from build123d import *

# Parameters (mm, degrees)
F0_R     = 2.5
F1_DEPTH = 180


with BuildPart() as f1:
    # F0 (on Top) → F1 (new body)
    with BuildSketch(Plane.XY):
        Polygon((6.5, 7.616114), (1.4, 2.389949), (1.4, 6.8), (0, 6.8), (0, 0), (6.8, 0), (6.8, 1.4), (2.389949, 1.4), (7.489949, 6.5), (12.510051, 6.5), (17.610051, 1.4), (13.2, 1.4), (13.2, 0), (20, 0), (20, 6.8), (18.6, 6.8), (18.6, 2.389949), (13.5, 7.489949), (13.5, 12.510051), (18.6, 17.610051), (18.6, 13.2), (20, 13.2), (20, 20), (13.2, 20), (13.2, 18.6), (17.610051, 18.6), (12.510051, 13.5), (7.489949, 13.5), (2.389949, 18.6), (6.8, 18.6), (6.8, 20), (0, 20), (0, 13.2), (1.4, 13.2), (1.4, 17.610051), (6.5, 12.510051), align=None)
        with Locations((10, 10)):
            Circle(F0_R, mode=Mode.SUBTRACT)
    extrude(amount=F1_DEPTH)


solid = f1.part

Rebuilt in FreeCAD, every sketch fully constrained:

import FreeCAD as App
import Part
import Sketcher

V = App.Vector
Q = App.Units.Quantity

doc = App.newDocument("Part")
body = doc.addObject("PartDesign::Body", "Body")

# Sketch on XY plane
sketch1 = body.newObject("Sketcher::SketchObject", "Sketch")
sketch1.AttachmentSupport = (doc.getObject("XY_Plane"), [""])
sketch1.MapMode = "FlatFace"
sketch1.addGeometry(Part.LineSegment(V(6.5, 7.6, 0), V(1.4, 2.4, 0)), False)
sketch1.addGeometry(Part.LineSegment(V(1.4, 2.4, 0), V(1.4, 6.8, 0)), False)
sketch1.addGeometry(Part.LineSegment(V(1.4, 6.8, 0), V(0, 6.8, 0)), False)
sketch1.addGeometry(Part.LineSegment(V(0, 6.8, 0), V(0, 0, 0)), False)
sketch1.addGeometry(Part.LineSegment(V(0, 0, 0), V(6.8, 0, 0)), False)
sketch1.addGeometry(Part.LineSegment(V(6.8, 0, 0), V(6.8, 1.4, 0)), False)
sketch1.addGeometry(Part.LineSegment(V(6.8, 1.4, 0), V(2.4, 1.4, 0)), False)
sketch1.addGeometry(Part.LineSegment(V(2.4, 1.4, 0), V(7.5, 6.5, 0)), False)
sketch1.addGeometry(Part.LineSegment(V(7.5, 6.5, 0), V(12.5, 6.5, 0)), False)
sketch1.addGeometry(Part.LineSegment(V(12.5, 6.5, 0), V(17.6, 1.4, 0)), False)
sketch1.addGeometry(Part.LineSegment(V(17.6, 1.4, 0), V(13.2, 1.4, 0)), False)
sketch1.addGeometry(Part.LineSegment(V(13.2, 1.4, 0), V(13.2, 0, 0)), False)
sketch1.addGeometry(Part.LineSegment(V(13.2, 0, 0), V(20, 0, 0)), False)
sketch1.addGeometry(Part.LineSegment(V(20, 0, 0), V(20, 6.8, 0)), False)
sketch1.addGeometry(Part.LineSegment(V(20, 6.8, 0), V(18.6, 6.8, 0)), False)
sketch1.addGeometry(Part.LineSegment(V(18.6, 6.8, 0), V(18.6, 2.4, 0)), False)
sketch1.addGeometry(Part.LineSegment(V(18.6, 2.4, 0), V(13.5, 7.5, 0)), False)
sketch1.addGeometry(Part.LineSegment(V(13.5, 7.5, 0), V(13.5, 12.5, 0)), False)
sketch1.addGeometry(Part.LineSegment(V(13.5, 12.5, 0), V(18.6, 17.6, 0)), False)
sketch1.addGeometry(Part.LineSegment(V(18.6, 17.6, 0), V(18.6, 13.2, 0)), False)
sketch1.addGeometry(Part.LineSegment(V(18.6, 13.2, 0), V(20, 13.2, 0)), False)
sketch1.addGeometry(Part.LineSegment(V(20, 13.2, 0), V(20, 20, 0)), False)
sketch1.addGeometry(Part.LineSegment(V(20, 20, 0), V(13.2, 20, 0)), False)
sketch1.addGeometry(Part.LineSegment(V(13.2, 20, 0), V(13.2, 18.6, 0)), False)
sketch1.addGeometry(Part.LineSegment(V(13.2, 18.6, 0), V(17.6, 18.6, 0)), False)
sketch1.addGeometry(Part.LineSegment(V(17.6, 18.6, 0), V(12.5, 13.5, 0)), False)
sketch1.addGeometry(Part.LineSegment(V(12.5, 13.5, 0), V(7.5, 13.5, 0)), False)
sketch1.addGeometry(Part.LineSegment(V(7.5, 13.5, 0), V(2.4, 18.6, 0)), False)
sketch1.addGeometry(Part.LineSegment(V(2.4, 18.6, 0), V(6.8, 18.6, 0)), False)
sketch1.addGeometry(Part.LineSegment(V(6.8, 18.6, 0), V(6.8, 20, 0)), False)
sketch1.addGeometry(Part.LineSegment(V(6.8, 20, 0), V(0, 20, 0)), False)
sketch1.addGeometry(Part.LineSegment(V(0, 20, 0), V(0, 13.2, 0)), False)
sketch1.addGeometry(Part.LineSegment(V(0, 13.2, 0), V(1.4, 13.2, 0)), False)
sketch1.addGeometry(Part.LineSegment(V(1.4, 13.2, 0), V(1.4, 17.6, 0)), False)
sketch1.addGeometry(Part.LineSegment(V(1.4, 17.6, 0), V(6.5, 12.5, 0)), False)
sketch1.addGeometry(Part.LineSegment(V(6.5, 12.5, 0), V(6.5, 7.6, 0)), False)
sketch1.addGeometry(Part.Circle(V(10, 10, 0), V(0, 0, 1), 2.5), False)
sketch1.addConstraint(Sketcher.Constraint("Coincident", 0, 2, 1, 1))
sketch1.addConstraint(Sketcher.Constraint("Coincident", 1, 2, 2, 1))
sketch1.addConstraint(Sketcher.Constraint("Coincident", 2, 2, 3, 1))
sketch1.addConstraint(Sketcher.Constraint("Coincident", 3, 2, 4, 1))
sketch1.addConstraint(Sketcher.Constraint("Coincident", 4, 2, 5, 1))
sketch1.addConstraint(Sketcher.Constraint("Coincident", 5, 2, 6, 1))
sketch1.addConstraint(Sketcher.Constraint("Coincident", 6, 2, 7, 1))
sketch1.addConstraint(Sketcher.Constraint("Coincident", 7, 2, 8, 1))
sketch1.addConstraint(Sketcher.Constraint("Coincident", 8, 2, 9, 1))
sketch1.addConstraint(Sketcher.Constraint("Coincident", 9, 2, 10, 1))
sketch1.addConstraint(Sketcher.Constraint("Coincident", 10, 2, 11, 1))
sketch1.addConstraint(Sketcher.Constraint("Coincident", 11, 2, 12, 1))
sketch1.addConstraint(Sketcher.Constraint("Coincident", 12, 2, 13, 1))
sketch1.addConstraint(Sketcher.Constraint("Coincident", 13, 2, 14, 1))
sketch1.addConstraint(Sketcher.Constraint("Coincident", 14, 2, 15, 1))
sketch1.addConstraint(Sketcher.Constraint("Coincident", 15, 2, 16, 1))
sketch1.addConstraint(Sketcher.Constraint("Coincident", 16, 2, 17, 1))
sketch1.addConstraint(Sketcher.Constraint("Coincident", 17, 2, 18, 1))
sketch1.addConstraint(Sketcher.Constraint("Coincident", 18, 2, 19, 1))
sketch1.addConstraint(Sketcher.Constraint("Coincident", 19, 2, 20, 1))
sketch1.addConstraint(Sketcher.Constraint("Coincident", 20, 2, 21, 1))
sketch1.addConstraint(Sketcher.Constraint("Coincident", 21, 2, 22, 1))
sketch1.addConstraint(Sketcher.Constraint("Coincident", 22, 2, 23, 1))
sketch1.addConstraint(Sketcher.Constraint("Coincident", 23, 2, 24, 1))
sketch1.addConstraint(Sketcher.Constraint("Coincident", 24, 2, 25, 1))
sketch1.addConstraint(Sketcher.Constraint("Coincident", 25, 2, 26, 1))
sketch1.addConstraint(Sketcher.Constraint("Coincident", 26, 2, 27, 1))
sketch1.addConstraint(Sketcher.Constraint("Coincident", 27, 2, 28, 1))
sketch1.addConstraint(Sketcher.Constraint("Coincident", 28, 2, 29, 1))
sketch1.addConstraint(Sketcher.Constraint("Coincident", 29, 2, 30, 1))
sketch1.addConstraint(Sketcher.Constraint("Coincident", 30, 2, 31, 1))
sketch1.addConstraint(Sketcher.Constraint("Coincident", 31, 2, 32, 1))
sketch1.addConstraint(Sketcher.Constraint("Coincident", 32, 2, 33, 1))
sketch1.addConstraint(Sketcher.Constraint("Coincident", 33, 2, 34, 1))
sketch1.addConstraint(Sketcher.Constraint("Coincident", 34, 2, 35, 1))
sketch1.addConstraint(Sketcher.Constraint("Coincident", 35, 2, 0, 1))
sketch1.addConstraint(Sketcher.Constraint("Vertical", 1))
sketch1.addConstraint(Sketcher.Constraint("Horizontal", 2))
sketch1.addConstraint(Sketcher.Constraint("Vertical", 3))
sketch1.addConstraint(Sketcher.Constraint("Horizontal", 4))
sketch1.addConstraint(Sketcher.Constraint("Vertical", 5))
sketch1.addConstraint(Sketcher.Constraint("Horizontal", 6))
sketch1.addConstraint(Sketcher.Constraint("Horizontal", 8))
sketch1.addConstraint(Sketcher.Constraint("Horizontal", 10))
sketch1.addConstraint(Sketcher.Constraint("Vertical", 11))
sketch1.addConstraint(Sketcher.Constraint("Horizontal", 12))
sketch1.addConstraint(Sketcher.Constraint("Vertical", 13))
sketch1.addConstraint(Sketcher.Constraint("Horizontal", 14))
sketch1.addConstraint(Sketcher.Constraint("Vertical", 15))
sketch1.addConstraint(Sketcher.Constraint("Vertical", 17))
sketch1.addConstraint(Sketcher.Constraint("Vertical", 19))
sketch1.addConstraint(Sketcher.Constraint("Horizontal", 20))
sketch1.addConstraint(Sketcher.Constraint("Vertical", 21))
sketch1.addConstraint(Sketcher.Constraint("Horizontal", 22))
sketch1.addConstraint(Sketcher.Constraint("Vertical", 23))
sketch1.addConstraint(Sketcher.Constraint("Horizontal", 24))
sketch1.addConstraint(Sketcher.Constraint("Horizontal", 26))
sketch1.addConstraint(Sketcher.Constraint("Horizontal", 28))
sketch1.addConstraint(Sketcher.Constraint("Vertical", 29))
sketch1.addConstraint(Sketcher.Constraint("Horizontal", 30))
sketch1.addConstraint(Sketcher.Constraint("Vertical", 31))
sketch1.addConstraint(Sketcher.Constraint("Horizontal", 32))
sketch1.addConstraint(Sketcher.Constraint("Vertical", 33))
sketch1.addConstraint(Sketcher.Constraint("Vertical", 35))
sketch1.addConstraint(Sketcher.Constraint("Coincident", 3, 2, -1, 1))
sketch1.addConstraint(Sketcher.Constraint("PointOnObject", 11, 2, -1))
sketch1.addConstraint(Sketcher.Constraint("PointOnObject", 30, 2, -2))
sketch1.addConstraint(Sketcher.Constraint("Perpendicular", 7, 9))
sketch1.addConstraint(Sketcher.Constraint("Parallel", 9, 16))
sketch1.addConstraint(Sketcher.Constraint("Perpendicular", 16, 18))
sketch1.addConstraint(Sketcher.Constraint("Parallel", 18, 25))
sketch1.addConstraint(Sketcher.Constraint("Perpendicular", 25, 27))
sketch1.addConstraint(Sketcher.Constraint("Parallel", 27, 34))
sketch1.addConstraint(Sketcher.Constraint("Horizontal", 6, 2, 9, 2))
sketch1.addConstraint(Sketcher.Constraint("Horizontal", 2, 2, 13, 2))
sketch1.addConstraint(Sketcher.Constraint("Horizontal", 0, 2, 15, 2))
sketch1.addConstraint(Sketcher.Constraint("Horizontal", 24, 2, 27, 2))
sketch1.addConstraint(Sketcher.Constraint("Horizontal", 22, 2, 29, 2))
sketch1.addConstraint(Sketcher.Constraint("Horizontal", 20, 2, 31, 2))
sketch1.addConstraint(Sketcher.Constraint("Horizontal", 18, 2, 33, 2))
sketch1.addConstraint(Sketcher.Constraint("Horizontal", 17, 2, 34, 2))
sketch1.addConstraint(Sketcher.Constraint("Vertical", 15, 2, 18, 2))
sketch1.addConstraint(Sketcher.Constraint("Vertical", 13, 2, 20, 2))
sketch1.addConstraint(Sketcher.Constraint("Vertical", 11, 2, 22, 2))
sketch1.addConstraint(Sketcher.Constraint("Vertical", 9, 2, 24, 2))
sketch1.addConstraint(Sketcher.Constraint("Vertical", 8, 2, 25, 2))
sketch1.addConstraint(Sketcher.Constraint("Vertical", 7, 2, 26, 2))
sketch1.addConstraint(Sketcher.Constraint("Vertical", 6, 2, 27, 2))
sketch1.addConstraint(Sketcher.Constraint("Vertical", 5, 2, 28, 2))
sketch1.addConstraint(Sketcher.Constraint("Vertical", 1, 2, 32, 2))
sketch1.addConstraint(Sketcher.Constraint("Equal", 6, 10))
sketch1.addConstraint(Sketcher.Constraint("Equal", 4, 12))
sketch1.addConstraint(Sketcher.Constraint("Equal", 2, 14))
sketch1.addConstraint(Sketcher.Constraint("Equal", 28, 1))
sketch1.addConstraint(Sketcher.Constraint("Equal", 30, 3))
sketch1.addConstraint(Sketcher.Constraint("Equal", 32, 5))
sketch1.addConstraint(Sketcher.Constraint("Equal", 26, 17))
sketch1.addConstraint(Sketcher.Constraint("Equal", 15, 19))
sketch1.addConstraint(Sketcher.Constraint("Equal", 13, 21))
sketch1.addConstraint(Sketcher.Constraint("Equal", 11, 23))
sketch1.addConstraint(Sketcher.Constraint("Equal", 9, 16))
sketch1.addConstraint(Sketcher.Constraint("Diameter", 36, 5.0))
sketch1.addConstraint(Sketcher.Constraint("DistanceX", 2, 2, 2, 1, 1.4))
sketch1.addConstraint(Sketcher.Constraint("DistanceX", 4, 1, 4, 2, 6.8))
sketch1.addConstraint(Sketcher.Constraint("DistanceX", -1, 1, 36, 3, 10.0))
sketch1.addConstraint(Sketcher.Constraint("DistanceY", -1, 1, 36, 3, 10.0))
sketch1.addConstraint(Sketcher.Constraint("DistanceX", -1, 1, 12, 2, 20.0))
sketch1.addConstraint(Sketcher.Constraint("Angle", 0, Q("-134.299995 deg")))
sketch1.addConstraint(Sketcher.Constraint("DistanceY", 7, 2, 26, 2, 7.0))
sketch1.addConstraint(Sketcher.Constraint("DistanceX", 6, 2, 6, 1, 4.410051))
pad1 = body.newObject("PartDesign::Pad", "Pad")
pad1.Profile = sketch1
pad1.Length = 180

doc.recompute()
